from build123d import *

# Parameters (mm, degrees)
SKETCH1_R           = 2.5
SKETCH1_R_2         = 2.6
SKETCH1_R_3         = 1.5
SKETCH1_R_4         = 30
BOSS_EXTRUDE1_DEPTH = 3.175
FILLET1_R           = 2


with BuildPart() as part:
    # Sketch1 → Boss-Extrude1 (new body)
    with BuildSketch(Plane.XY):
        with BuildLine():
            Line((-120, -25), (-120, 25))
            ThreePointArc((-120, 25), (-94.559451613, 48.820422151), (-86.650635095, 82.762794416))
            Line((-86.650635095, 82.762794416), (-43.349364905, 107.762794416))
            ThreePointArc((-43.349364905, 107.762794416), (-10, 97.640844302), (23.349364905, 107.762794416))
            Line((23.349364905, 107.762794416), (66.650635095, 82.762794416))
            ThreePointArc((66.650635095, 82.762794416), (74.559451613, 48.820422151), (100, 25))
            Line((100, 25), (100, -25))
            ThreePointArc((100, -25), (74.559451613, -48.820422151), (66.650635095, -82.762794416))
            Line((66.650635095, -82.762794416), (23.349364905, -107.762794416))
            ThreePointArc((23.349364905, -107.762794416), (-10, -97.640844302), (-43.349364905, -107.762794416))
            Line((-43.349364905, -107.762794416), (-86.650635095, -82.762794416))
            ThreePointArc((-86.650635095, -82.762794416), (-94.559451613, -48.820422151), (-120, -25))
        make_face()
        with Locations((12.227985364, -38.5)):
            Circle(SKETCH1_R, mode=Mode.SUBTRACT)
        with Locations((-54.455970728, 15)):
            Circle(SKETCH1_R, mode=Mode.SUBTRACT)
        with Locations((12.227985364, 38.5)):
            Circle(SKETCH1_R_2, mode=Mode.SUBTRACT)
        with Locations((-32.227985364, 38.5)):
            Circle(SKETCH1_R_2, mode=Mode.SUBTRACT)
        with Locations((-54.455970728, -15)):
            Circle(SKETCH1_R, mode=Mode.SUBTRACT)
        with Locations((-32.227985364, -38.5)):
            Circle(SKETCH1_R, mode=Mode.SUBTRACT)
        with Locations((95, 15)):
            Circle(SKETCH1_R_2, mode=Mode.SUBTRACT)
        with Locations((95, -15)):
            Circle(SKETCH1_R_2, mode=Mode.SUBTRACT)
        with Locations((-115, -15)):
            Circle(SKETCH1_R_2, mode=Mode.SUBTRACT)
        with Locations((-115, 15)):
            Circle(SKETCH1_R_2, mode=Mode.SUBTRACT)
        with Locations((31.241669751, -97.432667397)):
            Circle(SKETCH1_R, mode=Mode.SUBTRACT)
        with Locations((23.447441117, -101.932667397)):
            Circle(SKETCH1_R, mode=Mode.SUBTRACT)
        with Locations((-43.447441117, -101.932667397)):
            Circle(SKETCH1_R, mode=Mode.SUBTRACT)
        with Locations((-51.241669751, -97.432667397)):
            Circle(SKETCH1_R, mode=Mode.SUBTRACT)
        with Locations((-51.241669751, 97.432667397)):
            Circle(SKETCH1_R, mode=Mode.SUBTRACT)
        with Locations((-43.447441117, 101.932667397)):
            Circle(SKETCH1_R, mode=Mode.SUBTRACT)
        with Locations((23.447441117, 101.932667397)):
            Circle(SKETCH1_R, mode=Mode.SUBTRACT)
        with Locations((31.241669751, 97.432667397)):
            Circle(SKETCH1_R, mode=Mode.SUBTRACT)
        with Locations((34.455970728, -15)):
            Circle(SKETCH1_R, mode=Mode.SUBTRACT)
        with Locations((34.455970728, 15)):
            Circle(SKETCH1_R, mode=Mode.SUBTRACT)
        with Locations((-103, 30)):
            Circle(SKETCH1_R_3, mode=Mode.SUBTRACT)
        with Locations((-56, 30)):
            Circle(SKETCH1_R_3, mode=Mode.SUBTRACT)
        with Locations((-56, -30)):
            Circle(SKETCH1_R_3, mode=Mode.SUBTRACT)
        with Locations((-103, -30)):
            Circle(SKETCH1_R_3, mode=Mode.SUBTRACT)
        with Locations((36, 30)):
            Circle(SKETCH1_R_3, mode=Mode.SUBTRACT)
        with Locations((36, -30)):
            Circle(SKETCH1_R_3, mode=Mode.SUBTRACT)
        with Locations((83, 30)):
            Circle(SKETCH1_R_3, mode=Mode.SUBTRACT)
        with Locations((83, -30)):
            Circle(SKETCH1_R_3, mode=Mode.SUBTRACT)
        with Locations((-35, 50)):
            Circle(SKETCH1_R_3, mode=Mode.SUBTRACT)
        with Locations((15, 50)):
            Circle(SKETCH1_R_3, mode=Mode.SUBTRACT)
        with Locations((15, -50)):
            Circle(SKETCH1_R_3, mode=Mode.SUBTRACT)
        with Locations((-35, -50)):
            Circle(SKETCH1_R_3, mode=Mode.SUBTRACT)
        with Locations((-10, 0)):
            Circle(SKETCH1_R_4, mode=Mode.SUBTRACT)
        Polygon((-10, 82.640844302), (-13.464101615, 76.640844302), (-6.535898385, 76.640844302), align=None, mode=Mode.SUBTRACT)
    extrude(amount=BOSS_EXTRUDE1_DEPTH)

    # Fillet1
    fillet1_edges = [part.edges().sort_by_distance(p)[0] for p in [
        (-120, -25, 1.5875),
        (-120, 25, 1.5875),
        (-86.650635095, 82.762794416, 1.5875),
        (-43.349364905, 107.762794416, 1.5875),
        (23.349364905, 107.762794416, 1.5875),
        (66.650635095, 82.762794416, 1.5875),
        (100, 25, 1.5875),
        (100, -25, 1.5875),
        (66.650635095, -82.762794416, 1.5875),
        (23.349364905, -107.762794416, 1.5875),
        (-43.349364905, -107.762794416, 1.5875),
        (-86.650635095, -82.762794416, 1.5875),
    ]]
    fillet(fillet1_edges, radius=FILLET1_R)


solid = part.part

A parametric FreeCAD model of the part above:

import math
import FreeCAD as App
import Part
import Sketcher
Q = App.Units.Quantity


def edges_at(feature, points):
    """Names of the edges that pass closest to the given points."""
    edges = feature.Shape.Edges
    near = lambda p: min(range(len(edges)), key=lambda i: edges[i].distToShape(Part.Vertex(*p))[0])
    return sorted({f"Edge{near(p) + 1}" for p in points})


def add_polygon(sketch, points):
    """Adds a closed chain of lines whose ends are joined by coincident constraints."""
    first, n = sketch.GeometryCount, len(points)
    for a, b in zip(points, points[1:] + points[:1]):
        sketch.addGeometry(Part.LineSegment(App.Vector(*a, 0), App.Vector(*b, 0)), False)
    for i in range(n):
        sketch.addConstraint(Sketcher.Constraint("Coincident", first + i, 2, first + (i + 1) % n, 1))

doc = App.newDocument("Part")
body = doc.addObject("PartDesign::Body", "Body")

# Sketch on XY plane
sketch1 = body.newObject("Sketcher::SketchObject", "Sketch")
sketch1.AttachmentSupport = (doc.getObject("XY_Plane"), [""])
sketch1.MapMode = "FlatFace"
sketch1.addGeometry(Part.LineSegment(App.Vector(-120, 25, 0), App.Vector(-120, -25, 0)), False)  # 0
sketch1.addGeometry(Part.ArcOfCircle(Part.Circle(App.Vector(-146.520976, -78.820422, 0), App.Vector(0, 0, 1), 60), math.radians(-3.767402), math.radians(63.767402)), False)  # 1
sketch1.addGeometry(Part.LineSegment(App.Vector(-86.650635, -82.762794, 0), App.Vector(-43.349365, -107.762794, 0)), False)  # 2
sketch1.addGeometry(Part.ArcOfCircle(Part.Circle(App.Vector(-10, -157.640844, 0), App.Vector(0, 0, 1), 60), math.radians(56.232598), math.radians(123.767402)), False)  # 3
sketch1.addGeometry(Part.LineSegment(App.Vector(23.349365, -107.762794, 0), App.Vector(66.650635, -82.762794, 0)), False)  # 4
sketch1.addGeometry(Part.ArcOfCircle(Part.Circle(App.Vector(126.520976, -78.820422, 0), App.Vector(0, 0, 1), 60), math.radians(116.232598), math.radians(183.767402)), False)  # 5
sketch1.addGeometry(Part.LineSegment(App.Vector(100, -25, 0), App.Vector(100, 25, 0)), False)  # 6
sketch1.addGeometry(Part.ArcOfCircle(Part.Circle(App.Vector(126.520976, 78.820422, 0), App.Vector(0, 0, 1), 60), math.radians(176.232598), math.radians(243.767402)), False)  # 7
sketch1.addGeometry(Part.LineSegment(App.Vector(66.650635, 82.762794, 0), App.Vector(23.349365, 107.762794, 0)), False)  # 8
sketch1.addGeometry(Part.ArcOfCircle(Part.Circle(App.Vector(-10, 157.640844, 0), App.Vector(0, 0, 1), 60), math.radians(-123.767402), math.radians(-56.232598)), False)  # 9
sketch1.addGeometry(Part.LineSegment(App.Vector(-43.349365, 107.762794, 0), App.Vector(-86.650635, 82.762794, 0)), False)  # 10
sketch1.addGeometry(Part.ArcOfCircle(Part.Circle(App.Vector(-146.520976, 78.820422, 0), App.Vector(0, 0, 1), 60), math.radians(-63.767402), math.radians(3.767402)), False)  # 11
sketch1.addGeometry(Part.Circle(App.Vector(31.24167, -97.432667, 0), App.Vector(0, 0, 1), 2.5), False)  # 12
sketch1.addGeometry(Part.Circle(App.Vector(23.447441, -101.932667, 0), App.Vector(0, 0, 1), 2.5), False)  # 13
sketch1.addGeometry(Part.Circle(App.Vector(83, -30, 0), App.Vector(0, 0, 1), 1.5), False)  # 14
sketch1.addGeometry(Part.Circle(App.Vector(95, -15, 0), App.Vector(0, 0, 1), 2.6), False)  # 15
sketch1.addGeometry(Part.Circle(App.Vector(36, -30, 0), App.Vector(0, 0, 1), 1.5), False)  # 16
sketch1.addGeometry(Part.Circle(App.Vector(15, -50, 0), App.Vector(0, 0, 1), 1.5), False)  # 17
sketch1.addGeometry(Part.Circle(App.Vector(12.227985, -38.5, 0), App.Vector(0, 0, 1), 2.5), False)  # 18
sketch1.addGeometry(Part.Circle(App.Vector(34.455971, -15, 0), App.Vector(0, 0, 1), 2.5), False)  # 19
sketch1.addGeometry(Part.Circle(App.Vector(-43.447441, -101.932667, 0), App.Vector(0, 0, 1), 2.5), False)  # 20
sketch1.addGeometry(Part.Circle(App.Vector(-51.24167, -97.432667, 0), App.Vector(0, 0, 1), 2.5), False)  # 21
sketch1.addGeometry(Part.Circle(App.Vector(-35, -50, 0), App.Vector(0, 0, 1), 1.5), False)  # 22
sketch1.addGeometry(Part.Circle(App.Vector(-32.227985, -38.5, 0), App.Vector(0, 0, 1), 2.5), False)  # 23
sketch1.addGeometry(Part.Circle(App.Vector(-56, -30, 0), App.Vector(0, 0, 1), 1.5), False)  # 24
sketch1.addGeometry(Part.Circle(App.Vector(-10, 0, 0), App.Vector(0, 0, 1), 30), False)  # 25
sketch1.addGeometry(Part.Circle(App.Vector(-54.455971, -15, 0), App.Vector(0, 0, 1), 2.5), False)  # 26
sketch1.addGeometry(Part.Circle(App.Vector(-103, -30, 0), App.Vector(0, 0, 1), 1.5), False)  # 27
sketch1.addGeometry(Part.Circle(App.Vector(-115, -15, 0), App.Vector(0, 0, 1), 2.6), False)  # 28
sketch1.addGeometry(Part.Circle(App.Vector(95, 15, 0), App.Vector(0, 0, 1), 2.6), False)  # 29
sketch1.addGeometry(Part.Circle(App.Vector(83, 30, 0), App.Vector(0, 0, 1), 1.5), False)  # 30
sketch1.addGeometry(Part.Circle(App.Vector(34.455971, 15, 0), App.Vector(0, 0, 1), 2.5), False)  # 31
sketch1.addGeometry(Part.Circle(App.Vector(36, 30, 0), App.Vector(0, 0, 1), 1.5), False)  # 32
sketch1.addGeometry(Part.Circle(App.Vector(12.227985, 38.5, 0), App.Vector(0, 0, 1), 2.6), False)  # 33
sketch1.addGeometry(Part.Circle(App.Vector(15, 50, 0), App.Vector(0, 0, 1), 1.5), False)  # 34
sketch1.addGeometry(Part.Circle(App.Vector(31.24167, 97.432667, 0), App.Vector(0, 0, 1), 2.5), False)  # 35
sketch1.addGeometry(Part.Circle(App.Vector(23.447441, 101.932667, 0), App.Vector(0, 0, 1), 2.5), False)  # 36
sketch1.addGeometry(Part.Circle(App.Vector(-54.455971, 15, 0), App.Vector(0, 0, 1), 2.5), False)  # 37
sketch1.addGeometry(Part.Circle(App.Vector(-32.227985, 38.5, 0), App.Vector(0, 0, 1), 2.6), False)  # 38
sketch1.addGeometry(Part.Circle(App.Vector(-35, 50, 0), App.Vector(0, 0, 1), 1.5), False)  # 39
sketch1.addGeometry(Part.Circle(App.Vector(-56, 30, 0), App.Vector(0, 0, 1), 1.5), False)  # 40
sketch1.addGeometry(Part.Circle(App.Vector(-115, 15, 0), App.Vector(0, 0, 1), 2.6), False)  # 41
sketch1.addGeometry(Part.Circle(App.Vector(-103, 30, 0), App.Vector(0, 0, 1), 1.5), False)  # 42
add_polygon(sketch1, [(-10, 82.640844), (-6.535898, 76.640844), (-13.464102, 76.640844)])  # lines 43-45
sketch1.addGeometry(Part.Circle(App.Vector(-43.447441, 101.932667, 0), App.Vector(0, 0, 1), 2.5), False)  # 46
sketch1.addGeometry(Part.Circle(App.Vector(-51.24167, 97.432667, 0), App.Vector(0, 0, 1), 2.5), False)  # 47
sketch1.addConstraint([
    Sketcher.Constraint("Coincident", 0, 2, 1, 2),
    Sketcher.Constraint("Coincident", 1, 1, 2, 1),
    Sketcher.Constraint("Coincident", 2, 2, 3, 2),
    Sketcher.Constraint("Coincident", 3, 1, 4, 1),
    Sketcher.Constraint("Coincident", 4, 2, 5, 2),
    Sketcher.Constraint("Coincident", 5, 1, 6, 1),
    Sketcher.Constraint("Coincident", 6, 2, 7, 2),
    Sketcher.Constraint("Coincident", 7, 1, 8, 1),
    Sketcher.Constraint("Coincident", 8, 2, 9, 2),
    Sketcher.Constraint("Coincident", 9, 1, 10, 1),
    Sketcher.Constraint("Coincident", 10, 2, 11, 2),
    Sketcher.Constraint("Coincident", 11, 1, 0, 1),
    Sketcher.Constraint("Vertical", 0),
    Sketcher.Constraint("Vertical", 6),
    Sketcher.Constraint("Horizontal", 44),
    Sketcher.Constraint("Equal", 1, 3),
    Sketcher.Constraint("Equal", 3, 5),
    Sketcher.Constraint("Equal", 5, 7),
    Sketcher.Constraint("Equal", 7, 9),
    Sketcher.Constraint("Equal", 9, 11),
    Sketcher.Constraint("Equal", 12, 13),
    Sketcher.Constraint("Equal", 14, 16),
    Sketcher.Constraint("Equal", 16, 17),
    Sketcher.Constraint("Equal", 13, 18),
    Sketcher.Constraint("Equal", 18, 19),
    Sketcher.Constraint("Equal", 19, 20),
    Sketcher.Constraint("Equal", 20, 21),
    Sketcher.Constraint("Equal", 17, 22),
    Sketcher.Constraint("Equal", 21, 23),
    Sketcher.Constraint("Equal", 22, 24),
    Sketcher.Constraint("Equal", 23, 26),
    Sketcher.Constraint("Equal", 24, 27),
    Sketcher.Constraint("Equal", 15, 28),
    Sketcher.Constraint("Equal", 28, 29),
    Sketcher.Constraint("Equal", 27, 30),
    Sketcher.Constraint("Equal", 26, 31),
    Sketcher.Constraint("Equal", 30, 32),
    Sketcher.Constraint("Equal", 29, 33),
    Sketcher.Constraint("Equal", 32, 34),
    Sketcher.Constraint("Equal", 31, 35),
    Sketcher.Constraint("Equal", 35, 36),
    Sketcher.Constraint("Equal", 36, 37),
    Sketcher.Constraint("Equal", 33, 38),
    Sketcher.Constraint("Equal", 34, 39),
    Sketcher.Constraint("Equal", 39, 40),
    Sketcher.Constraint("Equal", 38, 41),
    Sketcher.Constraint("Equal", 40, 42),
    Sketcher.Constraint("Equal", 37, 46),
    Sketcher.Constraint("Equal", 46, 47),
    Sketcher.Constraint("Symmetric", 5, 3, 7, 3, -1),
    Sketcher.Constraint("Symmetric", 3, 3, 9, 3, -1),
    Sketcher.Constraint("Symmetric", 1, 3, 11, 3, -1),
    Sketcher.Constraint("Symmetric", 15, 3, 29, 3, -1),
    Sketcher.Constraint("Symmetric", 14, 3, 30, 3, -1),
    Sketcher.Constraint("Symmetric", 19, 3, 31, 3, -1),
    Sketcher.Constraint("Symmetric", 16, 3, 32, 3, -1),
    Sketcher.Constraint("Symmetric", 18, 3, 33, 3, -1),
    Sketcher.Constraint("Symmetric", 17, 3, 34, 3, -1),
    Sketcher.Constraint("Symmetric", 12, 3, 35, 3, -1),
    Sketcher.Constraint("Symmetric", 13, 3, 36, 3, -1),
    Sketcher.Constraint("Symmetric", 26, 3, 37, 3, -1),
    Sketcher.Constraint("Symmetric", 23, 3, 38, 3, -1),
    Sketcher.Constraint("Symmetric", 22, 3, 39, 3, -1),
    Sketcher.Constraint("Symmetric", 24, 3, 40, 3, -1),
    Sketcher.Constraint("Symmetric", 28, 3, 41, 3, -1),
    Sketcher.Constraint("Symmetric", 27, 3, 42, 3, -1),
    Sketcher.Constraint("Symmetric", 20, 3, 46, 3, -1),
    Sketcher.Constraint("Symmetric", 21, 3, 47, 3, -1),
    Sketcher.Constraint("PointOnObject", 25, 3, -1),
    Sketcher.Constraint("Parallel", 2, 8),
    Sketcher.Constraint("Parallel", 4, 10),
    Sketcher.Constraint("Perpendicular", 10, 43),
    Sketcher.Constraint("Perpendicular", 8, 45),
    Sketcher.Constraint("Horizontal", 1, 3, 5, 3),
    Sketcher.Constraint("Horizontal", 14, 3, 16, 3),
    Sketcher.Constraint("Horizontal", 15, 3, 19, 3),
    Sketcher.Constraint("Horizontal", 13, 3, 20, 3),
    Sketcher.Constraint("Horizontal", 12, 3, 21, 3),
    Sketcher.Constraint("Horizontal", 17, 3, 22, 3),
    Sketcher.Constraint("Horizontal", 18, 3, 23, 3),
    Sketcher.Constraint("Horizontal", 16, 3, 24, 3),
    Sketcher.Constraint("Horizontal", 19, 3, 26, 3),
    Sketcher.Constraint("Horizontal", 24, 3, 27, 3),
    Sketcher.Constraint("Horizontal", 26, 3, 28, 3),
    Sketcher.Constraint("Horizontal", 2, 2, 3, 1),
    Sketcher.Constraint("Horizontal", 1, 1, 4, 2),
    Sketcher.Constraint("Horizontal", 0, 2, 5, 1),
    Sketcher.Constraint("Horizontal", 8, 2, 9, 1),
    Sketcher.Constraint("Horizontal", 7, 1, 10, 2),
    Sketcher.Constraint("Vertical", 9, 3, 25, 3),
    Sketcher.Constraint("Vertical", 4, 2, 7, 1),
    Sketcher.Constraint("Vertical", 25, 3, 45, 2),
    Sketcher.Constraint("Diameter", 12, 5.0),
    Sketcher.Constraint("Diameter", 14, 3.0),
    Sketcher.Constraint("Diameter", 25, 60.0),
    Sketcher.Constraint("Radius", 1, 60.0),
    Sketcher.Constraint("Diameter", 15, 5.2),
    Sketcher.Constraint("DistanceY", 0, 2, 0, 1, 50.0),
    Sketcher.Constraint("Angle", 2, Q("-30 deg")),
    Sketcher.Constraint("Distance", 2, 50.0),
    Sketcher.Constraint("DistanceX", 3, 3, -1, 1, 10.0),
    Sketcher.Constraint("DistanceX", -1, 1, 14, 3, 83.0),
    Sketcher.Constraint("DistanceY", 14, 3, -1, 1, 30.0),
    Sketcher.Constraint("DistanceX", -1, 1, 15, 3, 95.0),
    Sketcher.Constraint("DistanceY", 15, 3, -1, 1, 15.0),
    Sketcher.Constraint("DistanceX", -1, 1, 16, 3, 36.0),
    Sketcher.Constraint("DistanceX", -1, 1, 17, 3, 15.0),
    Sketcher.Constraint("DistanceY", 17, 3, -1, 1, 50.0),
    Sketcher.Constraint("DistanceX", 22, 3, -1, 1, 35.0),
    Sketcher.Constraint("DistanceX", 24, 3, -1, 1, 56.0),
    Sketcher.Constraint("DistanceX", 27, 3, -1, 1, 103.0),
    Sketcher.Constraint("DistanceX", 28, 3, -1, 1, 115.0),
    Sketcher.Constraint("DistanceX", 0, 2, -1, 1, 120.0),
    Sketcher.Constraint("DistanceY", 43, 2, 45, 2, 6.0),
    Sketcher.Constraint("DistanceY", 18, 3, -1, 1, 38.5),
    Sketcher.Constraint("DistanceY", 13, 3, 12, 3, 4.5),
    Sketcher.Constraint("DistanceX", 35, 3, 31, 3, 3.214301),
    Sketcher.Constraint("DistanceX", -1, 1, 12, 3, 31.24167),
    Sketcher.Constraint("DistanceX", -1, 1, 13, 3, 23.447441),
    Sketcher.Constraint("DistanceX", 20, 3, -1, 1, 43.447441),
    Sketcher.Constraint("DistanceX", 21, 3, -1, 1, 51.24167),
    Sketcher.Constraint("DistanceX", 26, 3, -1, 1, 54.455971),
    Sketcher.Constraint("DistanceX", 1, 3, 5, 3, 273.041952),
    Sketcher.Constraint("DistanceY", 3, 3, 9, 3, 315.281689),
    Sketcher.Constraint("DistanceY", 12, 3, 7, 3, 176.25309),
    Sketcher.Constraint("DistanceX", 23, 3, 18, 3, 44.455971),
    Sketcher.Constraint("DistanceX", -1, 1, 18, 3, 12.227985),
    Sketcher.Constraint("DistanceY", -1, 1, 43, 2, 76.640844),
])
pad1 = body.newObject("PartDesign::Pad", "Pad")
pad1.Profile = sketch1
pad1.Length = 3.175
doc.recompute()

fillet = body.newObject("PartDesign::Fillet", "Fillet")
fillet.Base = (pad1, edges_at(pad1, [
    (-120, -25, 1.587),
    (-120, 25, 1.587),
    (-86.651, 82.763, 1.587),
    (-43.349, 107.763, 1.587),
    (23.349, 107.763, 1.587),
    (66.651, 82.763, 1.587),
    (100, 25, 1.587),
    (100, -25, 1.587),
    (66.651, -82.763, 1.587),
    (23.349, -107.763, 1.587),
    (-43.349, -107.763, 1.587),
    (-86.651, -82.763, 1.587),
]))
fillet.Radius = 2

doc.recompute()
